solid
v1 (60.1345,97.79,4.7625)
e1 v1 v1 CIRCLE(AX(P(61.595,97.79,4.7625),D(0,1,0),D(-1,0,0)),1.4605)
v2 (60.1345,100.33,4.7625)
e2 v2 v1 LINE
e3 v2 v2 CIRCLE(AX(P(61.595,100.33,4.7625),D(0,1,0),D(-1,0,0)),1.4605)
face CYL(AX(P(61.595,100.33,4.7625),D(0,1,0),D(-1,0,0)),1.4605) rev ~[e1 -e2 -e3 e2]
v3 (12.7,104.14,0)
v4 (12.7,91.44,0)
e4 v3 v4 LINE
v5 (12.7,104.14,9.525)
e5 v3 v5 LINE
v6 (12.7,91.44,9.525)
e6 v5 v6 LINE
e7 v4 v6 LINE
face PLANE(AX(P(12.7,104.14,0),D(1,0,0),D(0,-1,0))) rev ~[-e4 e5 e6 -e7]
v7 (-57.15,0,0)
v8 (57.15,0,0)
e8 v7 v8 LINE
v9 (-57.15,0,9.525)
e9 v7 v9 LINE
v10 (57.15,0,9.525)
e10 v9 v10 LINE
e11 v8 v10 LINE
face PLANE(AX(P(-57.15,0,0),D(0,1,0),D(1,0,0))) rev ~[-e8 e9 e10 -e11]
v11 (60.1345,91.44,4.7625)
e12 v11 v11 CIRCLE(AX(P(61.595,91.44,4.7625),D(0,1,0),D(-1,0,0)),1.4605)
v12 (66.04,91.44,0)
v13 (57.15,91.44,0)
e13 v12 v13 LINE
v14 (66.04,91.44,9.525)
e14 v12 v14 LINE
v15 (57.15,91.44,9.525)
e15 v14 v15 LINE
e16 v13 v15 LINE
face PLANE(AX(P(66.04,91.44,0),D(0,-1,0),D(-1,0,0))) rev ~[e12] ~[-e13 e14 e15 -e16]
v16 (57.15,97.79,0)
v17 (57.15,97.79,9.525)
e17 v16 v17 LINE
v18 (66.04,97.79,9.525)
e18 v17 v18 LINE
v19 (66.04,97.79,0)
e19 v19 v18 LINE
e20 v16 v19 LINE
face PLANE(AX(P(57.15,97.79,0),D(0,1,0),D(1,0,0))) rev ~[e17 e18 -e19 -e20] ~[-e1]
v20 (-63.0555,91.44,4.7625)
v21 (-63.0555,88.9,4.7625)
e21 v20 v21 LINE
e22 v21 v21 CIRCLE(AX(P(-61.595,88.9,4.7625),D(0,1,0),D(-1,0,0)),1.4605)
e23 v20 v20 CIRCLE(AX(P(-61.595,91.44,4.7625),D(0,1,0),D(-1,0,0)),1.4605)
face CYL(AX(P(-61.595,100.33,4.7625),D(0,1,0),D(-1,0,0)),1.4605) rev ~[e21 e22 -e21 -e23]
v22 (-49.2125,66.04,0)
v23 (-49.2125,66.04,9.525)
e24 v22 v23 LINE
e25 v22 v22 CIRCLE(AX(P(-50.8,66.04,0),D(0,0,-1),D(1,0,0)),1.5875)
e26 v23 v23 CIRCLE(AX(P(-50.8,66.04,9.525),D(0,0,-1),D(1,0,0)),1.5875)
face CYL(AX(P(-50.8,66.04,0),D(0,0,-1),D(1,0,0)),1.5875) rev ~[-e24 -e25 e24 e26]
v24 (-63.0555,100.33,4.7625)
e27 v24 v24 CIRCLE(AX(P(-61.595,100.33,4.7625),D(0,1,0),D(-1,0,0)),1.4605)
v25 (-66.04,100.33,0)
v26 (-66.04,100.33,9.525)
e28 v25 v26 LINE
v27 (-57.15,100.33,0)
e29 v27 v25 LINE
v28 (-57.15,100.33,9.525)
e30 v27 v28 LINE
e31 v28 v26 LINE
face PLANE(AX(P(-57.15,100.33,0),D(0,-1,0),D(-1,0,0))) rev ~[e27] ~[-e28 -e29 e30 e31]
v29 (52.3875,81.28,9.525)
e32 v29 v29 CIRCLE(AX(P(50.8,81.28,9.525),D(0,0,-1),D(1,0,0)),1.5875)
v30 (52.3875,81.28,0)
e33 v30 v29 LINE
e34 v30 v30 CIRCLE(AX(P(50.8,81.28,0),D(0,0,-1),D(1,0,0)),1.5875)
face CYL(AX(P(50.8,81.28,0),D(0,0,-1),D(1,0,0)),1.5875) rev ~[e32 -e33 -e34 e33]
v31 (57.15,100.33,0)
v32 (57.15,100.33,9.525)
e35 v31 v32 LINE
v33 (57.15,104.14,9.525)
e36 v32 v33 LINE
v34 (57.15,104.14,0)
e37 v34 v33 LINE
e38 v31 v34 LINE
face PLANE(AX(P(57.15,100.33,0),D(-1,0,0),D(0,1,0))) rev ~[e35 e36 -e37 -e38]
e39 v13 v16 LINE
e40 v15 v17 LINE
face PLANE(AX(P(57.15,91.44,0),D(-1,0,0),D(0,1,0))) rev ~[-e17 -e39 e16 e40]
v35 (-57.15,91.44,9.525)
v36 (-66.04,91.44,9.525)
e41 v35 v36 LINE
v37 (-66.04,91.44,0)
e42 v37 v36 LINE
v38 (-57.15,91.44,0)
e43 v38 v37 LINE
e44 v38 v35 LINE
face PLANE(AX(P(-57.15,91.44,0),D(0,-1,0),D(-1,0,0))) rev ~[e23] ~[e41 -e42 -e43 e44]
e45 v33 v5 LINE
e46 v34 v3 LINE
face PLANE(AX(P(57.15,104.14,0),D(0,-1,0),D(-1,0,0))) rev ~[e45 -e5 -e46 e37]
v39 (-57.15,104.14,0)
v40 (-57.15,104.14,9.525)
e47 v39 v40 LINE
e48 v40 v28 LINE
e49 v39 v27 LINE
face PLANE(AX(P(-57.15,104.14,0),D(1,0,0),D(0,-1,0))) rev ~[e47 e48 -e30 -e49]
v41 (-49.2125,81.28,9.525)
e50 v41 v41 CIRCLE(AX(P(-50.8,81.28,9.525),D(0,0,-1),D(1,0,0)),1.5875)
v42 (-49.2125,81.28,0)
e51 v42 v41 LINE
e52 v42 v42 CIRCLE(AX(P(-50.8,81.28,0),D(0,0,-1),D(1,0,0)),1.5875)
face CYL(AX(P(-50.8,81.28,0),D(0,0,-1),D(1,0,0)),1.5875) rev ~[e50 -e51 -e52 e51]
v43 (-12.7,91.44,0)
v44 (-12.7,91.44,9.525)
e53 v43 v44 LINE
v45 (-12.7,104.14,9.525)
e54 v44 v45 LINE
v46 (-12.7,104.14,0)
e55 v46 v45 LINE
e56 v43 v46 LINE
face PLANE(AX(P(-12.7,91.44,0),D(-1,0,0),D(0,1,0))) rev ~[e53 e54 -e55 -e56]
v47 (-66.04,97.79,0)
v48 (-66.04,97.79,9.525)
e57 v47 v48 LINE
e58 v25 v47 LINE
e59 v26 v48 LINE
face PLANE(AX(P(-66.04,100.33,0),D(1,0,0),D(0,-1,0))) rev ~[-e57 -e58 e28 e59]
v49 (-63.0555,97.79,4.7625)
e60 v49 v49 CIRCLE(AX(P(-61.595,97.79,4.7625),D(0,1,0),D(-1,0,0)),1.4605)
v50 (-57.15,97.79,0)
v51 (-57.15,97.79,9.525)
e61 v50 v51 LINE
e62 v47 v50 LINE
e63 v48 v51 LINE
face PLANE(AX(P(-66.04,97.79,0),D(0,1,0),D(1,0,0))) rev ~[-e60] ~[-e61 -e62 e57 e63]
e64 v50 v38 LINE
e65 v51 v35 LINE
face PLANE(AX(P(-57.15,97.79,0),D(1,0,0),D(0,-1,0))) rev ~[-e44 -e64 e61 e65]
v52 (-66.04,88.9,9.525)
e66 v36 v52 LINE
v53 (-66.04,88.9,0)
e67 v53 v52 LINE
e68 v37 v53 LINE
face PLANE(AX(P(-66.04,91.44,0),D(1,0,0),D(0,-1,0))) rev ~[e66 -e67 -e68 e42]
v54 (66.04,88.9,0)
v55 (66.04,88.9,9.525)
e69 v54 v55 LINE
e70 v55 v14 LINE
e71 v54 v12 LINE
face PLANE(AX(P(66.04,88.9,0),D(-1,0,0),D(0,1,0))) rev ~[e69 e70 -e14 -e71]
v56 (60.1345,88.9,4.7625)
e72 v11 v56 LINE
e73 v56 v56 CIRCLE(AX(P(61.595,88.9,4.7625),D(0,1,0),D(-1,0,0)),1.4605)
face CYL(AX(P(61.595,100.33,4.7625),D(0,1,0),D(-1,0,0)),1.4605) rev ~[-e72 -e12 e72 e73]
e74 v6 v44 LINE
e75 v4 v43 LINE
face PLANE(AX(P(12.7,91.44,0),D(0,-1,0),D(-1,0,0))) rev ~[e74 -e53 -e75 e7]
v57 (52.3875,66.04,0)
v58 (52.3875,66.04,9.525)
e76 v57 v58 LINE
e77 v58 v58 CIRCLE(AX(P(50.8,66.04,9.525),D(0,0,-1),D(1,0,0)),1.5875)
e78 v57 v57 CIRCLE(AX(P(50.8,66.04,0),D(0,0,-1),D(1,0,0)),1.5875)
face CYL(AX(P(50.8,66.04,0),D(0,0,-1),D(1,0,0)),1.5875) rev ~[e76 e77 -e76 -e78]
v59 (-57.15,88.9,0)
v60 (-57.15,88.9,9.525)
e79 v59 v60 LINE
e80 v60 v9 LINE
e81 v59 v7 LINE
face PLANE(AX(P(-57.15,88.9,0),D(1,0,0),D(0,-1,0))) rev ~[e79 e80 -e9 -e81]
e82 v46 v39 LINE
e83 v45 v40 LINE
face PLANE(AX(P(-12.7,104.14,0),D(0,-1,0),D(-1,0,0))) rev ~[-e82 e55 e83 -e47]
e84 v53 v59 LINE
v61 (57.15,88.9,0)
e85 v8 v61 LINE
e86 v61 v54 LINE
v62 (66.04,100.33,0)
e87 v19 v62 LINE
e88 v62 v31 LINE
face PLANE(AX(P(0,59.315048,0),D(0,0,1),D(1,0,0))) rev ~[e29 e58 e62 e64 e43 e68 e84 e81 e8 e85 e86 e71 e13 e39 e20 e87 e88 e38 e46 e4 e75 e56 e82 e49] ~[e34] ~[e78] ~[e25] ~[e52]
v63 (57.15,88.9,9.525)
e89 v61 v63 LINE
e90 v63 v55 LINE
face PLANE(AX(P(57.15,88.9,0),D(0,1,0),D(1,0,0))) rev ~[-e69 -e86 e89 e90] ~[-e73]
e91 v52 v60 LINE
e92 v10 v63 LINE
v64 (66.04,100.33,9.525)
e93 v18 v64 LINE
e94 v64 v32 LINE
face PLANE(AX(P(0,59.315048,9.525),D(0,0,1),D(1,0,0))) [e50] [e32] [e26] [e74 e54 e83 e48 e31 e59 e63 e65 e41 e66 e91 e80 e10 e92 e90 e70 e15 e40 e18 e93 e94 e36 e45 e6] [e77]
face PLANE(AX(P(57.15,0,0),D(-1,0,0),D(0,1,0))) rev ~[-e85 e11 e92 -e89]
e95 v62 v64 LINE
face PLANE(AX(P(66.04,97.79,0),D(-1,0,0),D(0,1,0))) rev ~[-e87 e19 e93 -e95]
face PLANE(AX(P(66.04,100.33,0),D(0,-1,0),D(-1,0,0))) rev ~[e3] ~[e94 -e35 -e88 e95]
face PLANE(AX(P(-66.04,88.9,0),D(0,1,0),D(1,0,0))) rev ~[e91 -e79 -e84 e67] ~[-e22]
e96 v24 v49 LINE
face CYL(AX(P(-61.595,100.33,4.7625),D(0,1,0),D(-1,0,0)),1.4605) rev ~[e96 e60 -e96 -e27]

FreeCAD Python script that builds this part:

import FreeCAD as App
import Part
import Sketcher
Q = App.Units.Quantity


def add_polygon(sketch, points):
    """Adds a closed chain of lines whose ends are joined by coincident constraints."""
    first, n = sketch.GeometryCount, len(points)
    for a, b in zip(points, points[1:] + points[:1]):
        sketch.addGeometry(Part.LineSegment(App.Vector(*a, 0), App.Vector(*b, 0)), False)
    for i in range(n):
        sketch.addConstraint(Sketcher.Constraint("Coincident", first + i, 2, first + (i + 1) % n, 1))

doc = App.newDocument("Part")
params = doc.addObject("Spreadsheet::Sheet", "Params")
for row, (alias, value) in enumerate([
    ("sketch1_width", "1 in"),
    ("sketch1_width2", "4.5 in"),
    ("sketch1_height", "0.5 in"),
    ("sketch1_height2", "0.1 in"),
    ("sketch1_height3", "3.5 in"),
    ("pad1_length", "0.375 in"),
    ("sketch2_diameter", "0.115 in"),
    ("sketch3_diameter", "0.125 in"),
], start=1):
    params.set(f"A{row}", alias)
    params.set(f"B{row}", "=" + value)
    params.setAlias(f"B{row}", alias)

body = doc.addObject("PartDesign::Body", "Body")

sketch1 = doc.addObject("Sketcher::SketchObject", "Sketch")
body.addObject(sketch1)
sketch1.AttachmentSupport = (doc.XY_Plane, [""])
sketch1.MapMode = "FlatFace"
add_polygon(sketch1, [(57.1, 100.3), (57.1, 104.1), (12.7, 104.1), (12.7, 91.4), (-12.7, 91.4), (-12.7, 104.1), (-57.1, 104.1), (-57.1, 100.3), (-66, 100.3), (-66, 97.8), (-57.1, 97.8), (-57.1, 91.4), (-66, 91.4), (-66, 88.9), (-57.1, 88.9), (-57.1, 0), (57.1, 0), (57.1, 88.9), (66, 88.9), (66, 91.4), (57.1, 91.4), (57.1, 97.8), (66, 97.8), (66, 100.3)])
sketch1.addConstraint([
    Sketcher.Constraint("Vertical", 0),
    Sketcher.Constraint("Horizontal", 1),
    Sketcher.Constraint("Vertical", 2),
    Sketcher.Constraint("Horizontal", 3),
    Sketcher.Constraint("Vertical", 4),
    Sketcher.Constraint("Horizontal", 5),
    Sketcher.Constraint("Vertical", 6),
    Sketcher.Constraint("Horizontal", 7),
    Sketcher.Constraint("Vertical", 8),
    Sketcher.Constraint("Horizontal", 9),
    Sketcher.Constraint("Vertical", 10),
    Sketcher.Constraint("Horizontal", 11),
    Sketcher.Constraint("Vertical", 12),
    Sketcher.Constraint("Horizontal", 13),
    Sketcher.Constraint("Vertical", 14),
    Sketcher.Constraint("Horizontal", 15),
    Sketcher.Constraint("Vertical", 16),
    Sketcher.Constraint("Horizontal", 17),
    Sketcher.Constraint("Vertical", 18),
    Sketcher.Constraint("Horizontal", 19),
    Sketcher.Constraint("Vertical", 20),
    Sketcher.Constraint("Horizontal", 21),
    Sketcher.Constraint("Vertical", 22),
    Sketcher.Constraint("Horizontal", 23),
    Sketcher.Constraint("Symmetric", 14, 2, 15, 2, -1, 1),
    Sketcher.Constraint("Symmetric", 1, 2, 4, 2, -2),
    Sketcher.Constraint("Symmetric", 12, 2, 17, 2, -2),
    Sketcher.Constraint("Symmetric", 10, 2, 19, 2, -2),
    Sketcher.Constraint("Symmetric", 8, 2, 21, 2, -2),
    Sketcher.Constraint("Symmetric", 6, 2, 23, 2, -2),
    Sketcher.Constraint("Horizontal", 3, 2, 10, 2),
    Sketcher.Constraint("Vertical", 6, 2, 9, 2),
    Sketcher.Constraint("Vertical", 8, 2, 11, 2),
    Sketcher.Constraint("Vertical", 10, 2, 13, 2),
    Sketcher.Constraint("Equal", 8, 12),
    Sketcher.Constraint("DistanceX", 3, 2, 3, 1, Q("1 in")),
    Sketcher.Constraint("DistanceX", 15, 1, 15, 2, Q("4.5 in")),
    Sketcher.Constraint("DistanceY", 2, 2, 2, 1, Q("0.5 in")),
    Sketcher.Constraint("DistanceY", 8, 2, 8, 1, Q("0.1 in")),
    Sketcher.Constraint("DistanceY", 14, 2, 14, 1, Q("3.5 in")),
    Sketcher.Constraint("DistanceX", 7, 2, 7, 1, Q("0.35 in")),
    Sketcher.Constraint("DistanceY", 0, 1, 0, 2, Q("0.15 in")),
])
sketch1.setExpression("Constraints[59]", "Params.sketch1_width")
sketch1.setExpression("Constraints[60]", "Params.sketch1_width2")
sketch1.setExpression("Constraints[61]", "Params.sketch1_height")
sketch1.setExpression("Constraints[62]", "Params.sketch1_height2")
sketch1.setExpression("Constraints[63]", "Params.sketch1_height3")
pad1 = doc.addObject("PartDesign::Pad", "Pad")
body.addObject(pad1)
pad1.Profile = sketch1
pad1.setExpression("Length", "Params.pad1_length")

sketch2 = doc.addObject("Sketcher::SketchObject", "Sketch001")
body.addObject(sketch2)
sketch2.AttachmentSupport = (doc.XZ_Plane, [""])
sketch2.MapMode = "FlatFace"
sketch2.AttachmentOffset = App.Placement(App.Vector(0, 0, -3.95 * 25.4), App.Rotation())
sketch2.addGeometry([
    Part.Circle(App.Vector(61.6, 4.8, 0), App.Vector(0, 0, 1), 1.5),
    Part.Circle(App.Vector(-61.6, 4.8, 0), App.Vector(0, 0, 1), 1.5),
], False)
sketch2.addConstraint([
    Sketcher.Constraint("Equal", 0, 1),
    Sketcher.Constraint("Symmetric", 0, 3, 1, 3, -2),
    Sketcher.Constraint("Diameter", 0, Q("0.115 in")),
    Sketcher.Constraint("DistanceX", 1, 3, 0, 3, Q("4.85 in")),
    Sketcher.Constraint("DistanceY", -1, 1, 0, 3, Q("0.1875 in")),
])
sketch2.setExpression("Constraints[2]", "Params.sketch2_diameter")
pocket1 = doc.addObject("PartDesign::Pocket", "Pocket")
body.addObject(pocket1)
pocket1.Profile = sketch2
pocket1.Type = "ThroughAll"
pocket1.Reversed = True

sketch3 = doc.addObject("Sketcher::SketchObject", "Sketch002")
body.addObject(sketch3)
sketch3.AttachmentSupport = (doc.XY_Plane, [""])
sketch3.MapMode = "FlatFace"
sketch3.addGeometry([
    Part.Circle(App.Vector(50.8, 81.3, 0), App.Vector(0, 0, 1), 1.6),
    Part.Circle(App.Vector(50.8, 66, 0), App.Vector(0, 0, 1), 1.6),
    Part.Circle(App.Vector(-50.8, 81.3, 0), App.Vector(0, 0, 1), 1.6),
    Part.Circle(App.Vector(-50.8, 66, 0), App.Vector(0, 0, 1), 1.6),
], False)
sketch3.addConstraint([
    Sketcher.Constraint("Equal", 0, 1),
    Sketcher.Constraint("Equal", 1, 2),
    Sketcher.Constraint("Equal", 2, 3),
    Sketcher.Constraint("Symmetric", 0, 3, 2, 3, -2),
    Sketcher.Constraint("Symmetric", 1, 3, 3, 3, -2),
    Sketcher.Constraint("Vertical", 0, 3, 1, 3),
    Sketcher.Constraint("Diameter", 0, Q("0.125 in")),
    Sketcher.Constraint("DistanceX", -1, 1, 0, 3, Q("2 in")),
    Sketcher.Constraint("DistanceY", -1, 1, 0, 3, Q("3.2 in")),
    Sketcher.Constraint("DistanceY", -1, 1, 1, 3, Q("2.6 in")),
])
sketch3.setExpression("Constraints[6]", "Params.sketch3_diameter")
pocket2 = doc.addObject("PartDesign::Pocket", "Pocket001")
body.addObject(pocket2)
pocket2.Profile = sketch3
pocket2.Type = "ThroughAll"
pocket2.Reversed = True

doc.recompute()
